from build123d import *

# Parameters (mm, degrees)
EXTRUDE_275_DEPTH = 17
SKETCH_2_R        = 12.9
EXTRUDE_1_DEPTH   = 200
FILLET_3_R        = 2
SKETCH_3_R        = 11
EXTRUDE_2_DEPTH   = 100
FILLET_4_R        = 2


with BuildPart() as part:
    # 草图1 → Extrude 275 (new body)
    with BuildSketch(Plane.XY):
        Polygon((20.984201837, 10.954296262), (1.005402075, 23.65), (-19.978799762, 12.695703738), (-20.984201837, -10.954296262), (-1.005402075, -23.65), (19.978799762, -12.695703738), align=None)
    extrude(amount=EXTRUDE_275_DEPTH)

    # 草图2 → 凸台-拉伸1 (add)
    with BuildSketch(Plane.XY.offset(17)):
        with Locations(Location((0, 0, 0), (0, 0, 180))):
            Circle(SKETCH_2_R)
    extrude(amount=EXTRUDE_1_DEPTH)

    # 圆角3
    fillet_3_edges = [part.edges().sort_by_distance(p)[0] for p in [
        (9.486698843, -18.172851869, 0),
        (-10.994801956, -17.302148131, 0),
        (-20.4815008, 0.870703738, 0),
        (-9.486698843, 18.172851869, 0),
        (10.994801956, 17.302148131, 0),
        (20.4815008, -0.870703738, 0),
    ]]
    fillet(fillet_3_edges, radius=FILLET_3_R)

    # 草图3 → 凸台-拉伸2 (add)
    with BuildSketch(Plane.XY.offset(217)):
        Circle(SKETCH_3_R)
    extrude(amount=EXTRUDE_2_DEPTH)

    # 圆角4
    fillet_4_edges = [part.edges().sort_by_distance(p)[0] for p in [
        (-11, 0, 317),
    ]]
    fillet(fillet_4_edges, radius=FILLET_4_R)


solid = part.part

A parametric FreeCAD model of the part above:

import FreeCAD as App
import Part
import Sketcher
from FreeCAD import Vector


def edges_at(feature, points):
    """Names of the edges that pass closest to the given points."""
    edges = feature.Shape.Edges
    near = lambda p: min(range(len(edges)), key=lambda i: edges[i].distToShape(Part.Vertex(*p))[0])
    return sorted({f"Edge{near(p) + 1}" for p in points})


def add_polygon(sketch, points):
    """Adds a closed chain of lines whose ends are joined by coincident constraints."""
    first, n = sketch.GeometryCount, len(points)
    for a, b in zip(points, points[1:] + points[:1]):
        sketch.addGeometry(Part.LineSegment(App.Vector(*a, 0), App.Vector(*b, 0)), False)
    for i in range(n):
        sketch.addConstraint(Sketcher.Constraint("Coincident", first + i, 2, first + (i + 1) % n, 1))

doc = App.newDocument("Part")
body = doc.addObject("PartDesign::Body", "Body")

# Sketch on XY plane
sketch1 = body.newObject("Sketcher::SketchObject", "Sketch")
sketch1.AttachmentSupport = (doc.getObject("XY_Plane"), [""])
sketch1.MapMode = "FlatFace"
add_polygon(sketch1, [(21, 11), (1, 24), (-20, 13), (-21, -11), (-1, -24), (20, -13)])  # lines 0-5
sketch1.addConstraint(Sketcher.Constraint("Symmetric", 0, 2, 3, 2, -1, 1))
sketch1.addConstraint(Sketcher.Constraint("Symmetric", 1, 2, 4, 2, -1, 1))
sketch1.addConstraint(Sketcher.Constraint("Symmetric", 2, 2, 5, 2, -1, 1))
sketch1.addConstraint(Sketcher.Constraint("Equal", 0, 1))
sketch1.addConstraint(Sketcher.Constraint("Equal", 1, 2))
sketch1.addConstraint(Sketcher.Constraint("DistanceY", 3, 2, 0, 2, 47.3))
sketch1.addConstraint(Sketcher.Constraint("DistanceY", 2, 2, 1, 2, 23.65))
sketch1.addConstraint(Sketcher.Constraint("DistanceX", 2, 2, 4, 2, 40.963002))
sketch1.addConstraint(Sketcher.Constraint("DistanceX", 1, 2, -1, 1, 19.9788))
pad1 = body.newObject("PartDesign::Pad", "Pad")
pad1.Profile = sketch1
pad1.Length = 17

# Sketch on XY plane
sketch2 = body.newObject("Sketcher::SketchObject", "Sketch001")
sketch2.AttachmentSupport = (doc.getObject("XY_Plane"), [""])
sketch2.MapMode = "FlatFace"
sketch2.AttachmentOffset = App.Placement(Vector(0, 0, 17), App.Rotation())
sketch2.addGeometry(Part.Circle(Vector(0, 0, 0), Vector(0, 0, 1), 13), False)
sketch2.addConstraint(Sketcher.Constraint("Coincident", 0, 3, -1, 1))
sketch2.addConstraint(Sketcher.Constraint("Diameter", 0, 25.8))
pad2 = body.newObject("PartDesign::Pad", "Pad001")
pad2.Profile = sketch2
pad2.Length = 200
doc.recompute()

fillet = body.newObject("PartDesign::Fillet", "Fillet")
fillet.Base = (pad2, edges_at(pad2, [
    (9.487, -18.173, 0),
    (-10.995, -17.302, 0),
    (-20.482, 0.871, 0),
    (-9.487, 18.173, 0),
    (10.995, 17.302, 0),
    (20.482, -0.871, 0),
]))
fillet.Radius = 2

# Sketch on XY plane
sketch3 = body.newObject("Sketcher::SketchObject", "Sketch002")
sketch3.AttachmentSupport = (doc.getObject("XY_Plane"), [""])
sketch3.MapMode = "FlatFace"
sketch3.AttachmentOffset = App.Placement(Vector(0, 0, 217), App.Rotation())
sketch3.addGeometry(Part.Circle(Vector(0, 0, 0), Vector(0, 0, 1), 11), False)
sketch3.addConstraint(Sketcher.Constraint("Coincident", 0, 3, -1, 1))
sketch3.addConstraint(Sketcher.Constraint("Diameter", 0, 22.0))
pad3 = body.newObject("PartDesign::Pad", "Pad002")
pad3.Profile = sketch3
pad3.Length = 100
doc.recompute()

fillet2 = body.newObject("PartDesign::Fillet", "Fillet001")
fillet2.Base = (pad3, edges_at(pad3, [(-11, 0, 317)]))
fillet2.Radius = 2

doc.recompute()
